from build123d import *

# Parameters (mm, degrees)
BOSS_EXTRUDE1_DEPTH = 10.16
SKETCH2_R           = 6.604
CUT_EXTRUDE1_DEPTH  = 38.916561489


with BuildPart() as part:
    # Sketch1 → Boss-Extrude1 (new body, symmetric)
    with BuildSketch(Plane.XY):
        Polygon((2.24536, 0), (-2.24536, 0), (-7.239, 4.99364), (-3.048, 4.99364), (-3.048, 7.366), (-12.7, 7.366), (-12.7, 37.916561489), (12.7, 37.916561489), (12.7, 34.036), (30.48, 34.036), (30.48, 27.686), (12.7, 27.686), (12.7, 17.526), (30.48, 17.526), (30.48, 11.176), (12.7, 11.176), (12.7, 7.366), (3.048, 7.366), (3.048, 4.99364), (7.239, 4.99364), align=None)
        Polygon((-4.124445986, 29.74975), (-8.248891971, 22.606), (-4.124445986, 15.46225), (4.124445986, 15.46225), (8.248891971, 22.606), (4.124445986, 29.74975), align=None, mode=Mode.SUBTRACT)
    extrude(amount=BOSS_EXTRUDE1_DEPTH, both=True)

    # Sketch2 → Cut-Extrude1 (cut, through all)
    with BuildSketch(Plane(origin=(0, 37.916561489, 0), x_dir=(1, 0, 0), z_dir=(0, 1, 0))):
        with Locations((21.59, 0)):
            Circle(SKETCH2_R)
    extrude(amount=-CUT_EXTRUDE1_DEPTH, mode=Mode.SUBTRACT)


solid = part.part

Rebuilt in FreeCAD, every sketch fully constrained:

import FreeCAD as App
import Part
import Sketcher

V = App.Vector
Q = App.Units.Quantity


def add_polygon(sketch, points):
    """Adds a closed chain of lines whose ends are joined by coincident constraints."""
    first, n = sketch.GeometryCount, len(points)
    for a, b in zip(points, points[1:] + points[:1]):
        sketch.addGeometry(Part.LineSegment(App.Vector(*a, 0), App.Vector(*b, 0)), False)
    for i in range(n):
        sketch.addConstraint(Sketcher.Constraint("Coincident", first + i, 2, first + (i + 1) % n, 1))

doc = App.newDocument("Part")
body = doc.addObject("PartDesign::Body", "Body")

sketch1 = doc.addObject("Sketcher::SketchObject", "Sketch")
body.addObject(sketch1)
sketch1.AttachmentSupport = (doc.XY_Plane, [""])
sketch1.MapMode = "FlatFace"
add_polygon(sketch1, [(-2.2, 0), (2.2, 0), (7.2, 5), (3, 5), (3, 7.4), (12.7, 7.4), (12.7, 11.2), (30.5, 11.2), (30.5, 17.5), (12.7, 17.5), (12.7, 27.7), (30.5, 27.7), (30.5, 34), (12.7, 34), (12.7, 37.9), (-12.7, 37.9), (-12.7, 7.4), (-3, 7.4), (-3, 5), (-7.2, 5)])
add_polygon(sketch1, [(-4.1, 29.7), (4.1, 29.7), (8.2, 22.6), (4.1, 15.5), (-4.1, 15.5), (-8.2, 22.6)])
sketch1.addConstraint(Sketcher.Constraint("Horizontal", 0))
sketch1.addConstraint(Sketcher.Constraint("Horizontal", 2))
sketch1.addConstraint(Sketcher.Constraint("Vertical", 3))
sketch1.addConstraint(Sketcher.Constraint("Horizontal", 4))
sketch1.addConstraint(Sketcher.Constraint("Vertical", 5))
sketch1.addConstraint(Sketcher.Constraint("Horizontal", 6))
sketch1.addConstraint(Sketcher.Constraint("Vertical", 7))
sketch1.addConstraint(Sketcher.Constraint("Horizontal", 8))
sketch1.addConstraint(Sketcher.Constraint("Vertical", 9))
sketch1.addConstraint(Sketcher.Constraint("Horizontal", 10))
sketch1.addConstraint(Sketcher.Constraint("Vertical", 11))
sketch1.addConstraint(Sketcher.Constraint("Horizontal", 12))
sketch1.addConstraint(Sketcher.Constraint("Vertical", 13))
sketch1.addConstraint(Sketcher.Constraint("Horizontal", 14))
sketch1.addConstraint(Sketcher.Constraint("Vertical", 15))
sketch1.addConstraint(Sketcher.Constraint("Horizontal", 16))
sketch1.addConstraint(Sketcher.Constraint("Vertical", 17))
sketch1.addConstraint(Sketcher.Constraint("Horizontal", 18))
sketch1.addConstraint(Sketcher.Constraint("Horizontal", 20))
sketch1.addConstraint(Sketcher.Constraint("Horizontal", 23))
sketch1.addConstraint(Sketcher.Constraint("Symmetric", 0, 2, 19, 2, -1, 1))
sketch1.addConstraint(Sketcher.Constraint("Symmetric", 4, 2, 15, 2, -2))
sketch1.addConstraint(Sketcher.Constraint("Symmetric", 2, 2, 17, 2, -2))
sketch1.addConstraint(Sketcher.Constraint("Symmetric", 21, 2, 24, 2, -2))
sketch1.addConstraint(Sketcher.Constraint("Perpendicular", 1, 19))
sketch1.addConstraint(Sketcher.Constraint("Parallel", 21, 24))
sketch1.addConstraint(Sketcher.Constraint("Parallel", 22, 25))
sketch1.addConstraint(Sketcher.Constraint("Vertical", 5, 2, 8, 2))
sketch1.addConstraint(Sketcher.Constraint("Vertical", 7, 2, 10, 2))
sketch1.addConstraint(Sketcher.Constraint("Vertical", 9, 2, 12, 2))
sketch1.addConstraint(Sketcher.Constraint("Vertical", 20, 2, 22, 2))
sketch1.addConstraint(Sketcher.Constraint("Vertical", 23, 2, 25, 2))
sketch1.addConstraint(Sketcher.Constraint("Equal", 2, 18))
sketch1.addConstraint(Sketcher.Constraint("Equal", 7, 11))
sketch1.addConstraint(Sketcher.Constraint("DistanceX", 14, 2, 14, 1, Q("1 in")))
sketch1.addConstraint(Sketcher.Constraint("DistanceX", 6, 1, 6, 2, Q("0.7 in")))
sketch1.addConstraint(Sketcher.Constraint("DistanceY", 9, 1, 9, 2, Q("0.4 in")))
sketch1.addConstraint(Sketcher.Constraint("Angle", 21, Q("-60 deg")))
sketch1.addConstraint(Sketcher.Constraint("DistanceX", 4, 1, 4, 2, Q("0.38 in")))
sketch1.addConstraint(Sketcher.Constraint("DistanceY", 5, 1, 5, 2, Q("0.15 in")))
sketch1.addConstraint(Sketcher.Constraint("DistanceY", 7, 1, 7, 2, Q("0.25 in")))
sketch1.addConstraint(Sketcher.Constraint("DistanceY", 21, 2, 9, 2, Q("0.2 in")))
sketch1.addConstraint(Sketcher.Constraint("DistanceX", 2, 2, 2, 1, Q("0.165 in")))
sketch1.addConstraint(Sketcher.Constraint("DistanceY", -1, 1, 3, 2, Q("0.29 in")))
sketch1.addConstraint(Sketcher.Constraint("DistanceX", 0, 1, 0, 2, Q("0.1768 in")))
sketch1.addConstraint(Sketcher.Constraint("DistanceY", 21, 2, 20, 2, Q("0.28125 in")))
sketch1.addConstraint(Sketcher.Constraint("DistanceX", 20, 1, 20, 2, Q("8.248892 mm")))
sketch1.addConstraint(Sketcher.Constraint("DistanceY", 13, 1, 13, 2, Q("3.880561 mm")))
pad1 = doc.addObject("PartDesign::Pad", "Pad")
body.addObject(pad1)
pad1.Profile = sketch1
pad1.Length = Q("0.8 in")
pad1.Midplane = True

sketch2 = doc.addObject("Sketcher::SketchObject", "Sketch001")
body.addObject(sketch2)
sketch2.AttachmentSupport = (doc.XZ_Plane, [""])
sketch2.MapMode = "FlatFace"
sketch2.AttachmentOffset = App.Placement(V(0, 0, -37.916561), App.Rotation())
sketch2.addGeometry(Part.Circle(V(22, 0, 0), V(0, 0, 1), 7), False)
sketch2.addConstraint(Sketcher.Constraint("PointOnObject", 0, 3, -1))
sketch2.addConstraint(Sketcher.Constraint("Diameter", 0, Q("0.52 in")))
sketch2.addConstraint(Sketcher.Constraint("DistanceX", -1, 1, 0, 3, Q("0.85 in")))
pocket1 = doc.addObject("PartDesign::Pocket", "Pocket")
body.addObject(pocket1)
pocket1.Profile = sketch2
pocket1.Type = "ThroughAll"
pocket1.Reversed = True

doc.recompute()
